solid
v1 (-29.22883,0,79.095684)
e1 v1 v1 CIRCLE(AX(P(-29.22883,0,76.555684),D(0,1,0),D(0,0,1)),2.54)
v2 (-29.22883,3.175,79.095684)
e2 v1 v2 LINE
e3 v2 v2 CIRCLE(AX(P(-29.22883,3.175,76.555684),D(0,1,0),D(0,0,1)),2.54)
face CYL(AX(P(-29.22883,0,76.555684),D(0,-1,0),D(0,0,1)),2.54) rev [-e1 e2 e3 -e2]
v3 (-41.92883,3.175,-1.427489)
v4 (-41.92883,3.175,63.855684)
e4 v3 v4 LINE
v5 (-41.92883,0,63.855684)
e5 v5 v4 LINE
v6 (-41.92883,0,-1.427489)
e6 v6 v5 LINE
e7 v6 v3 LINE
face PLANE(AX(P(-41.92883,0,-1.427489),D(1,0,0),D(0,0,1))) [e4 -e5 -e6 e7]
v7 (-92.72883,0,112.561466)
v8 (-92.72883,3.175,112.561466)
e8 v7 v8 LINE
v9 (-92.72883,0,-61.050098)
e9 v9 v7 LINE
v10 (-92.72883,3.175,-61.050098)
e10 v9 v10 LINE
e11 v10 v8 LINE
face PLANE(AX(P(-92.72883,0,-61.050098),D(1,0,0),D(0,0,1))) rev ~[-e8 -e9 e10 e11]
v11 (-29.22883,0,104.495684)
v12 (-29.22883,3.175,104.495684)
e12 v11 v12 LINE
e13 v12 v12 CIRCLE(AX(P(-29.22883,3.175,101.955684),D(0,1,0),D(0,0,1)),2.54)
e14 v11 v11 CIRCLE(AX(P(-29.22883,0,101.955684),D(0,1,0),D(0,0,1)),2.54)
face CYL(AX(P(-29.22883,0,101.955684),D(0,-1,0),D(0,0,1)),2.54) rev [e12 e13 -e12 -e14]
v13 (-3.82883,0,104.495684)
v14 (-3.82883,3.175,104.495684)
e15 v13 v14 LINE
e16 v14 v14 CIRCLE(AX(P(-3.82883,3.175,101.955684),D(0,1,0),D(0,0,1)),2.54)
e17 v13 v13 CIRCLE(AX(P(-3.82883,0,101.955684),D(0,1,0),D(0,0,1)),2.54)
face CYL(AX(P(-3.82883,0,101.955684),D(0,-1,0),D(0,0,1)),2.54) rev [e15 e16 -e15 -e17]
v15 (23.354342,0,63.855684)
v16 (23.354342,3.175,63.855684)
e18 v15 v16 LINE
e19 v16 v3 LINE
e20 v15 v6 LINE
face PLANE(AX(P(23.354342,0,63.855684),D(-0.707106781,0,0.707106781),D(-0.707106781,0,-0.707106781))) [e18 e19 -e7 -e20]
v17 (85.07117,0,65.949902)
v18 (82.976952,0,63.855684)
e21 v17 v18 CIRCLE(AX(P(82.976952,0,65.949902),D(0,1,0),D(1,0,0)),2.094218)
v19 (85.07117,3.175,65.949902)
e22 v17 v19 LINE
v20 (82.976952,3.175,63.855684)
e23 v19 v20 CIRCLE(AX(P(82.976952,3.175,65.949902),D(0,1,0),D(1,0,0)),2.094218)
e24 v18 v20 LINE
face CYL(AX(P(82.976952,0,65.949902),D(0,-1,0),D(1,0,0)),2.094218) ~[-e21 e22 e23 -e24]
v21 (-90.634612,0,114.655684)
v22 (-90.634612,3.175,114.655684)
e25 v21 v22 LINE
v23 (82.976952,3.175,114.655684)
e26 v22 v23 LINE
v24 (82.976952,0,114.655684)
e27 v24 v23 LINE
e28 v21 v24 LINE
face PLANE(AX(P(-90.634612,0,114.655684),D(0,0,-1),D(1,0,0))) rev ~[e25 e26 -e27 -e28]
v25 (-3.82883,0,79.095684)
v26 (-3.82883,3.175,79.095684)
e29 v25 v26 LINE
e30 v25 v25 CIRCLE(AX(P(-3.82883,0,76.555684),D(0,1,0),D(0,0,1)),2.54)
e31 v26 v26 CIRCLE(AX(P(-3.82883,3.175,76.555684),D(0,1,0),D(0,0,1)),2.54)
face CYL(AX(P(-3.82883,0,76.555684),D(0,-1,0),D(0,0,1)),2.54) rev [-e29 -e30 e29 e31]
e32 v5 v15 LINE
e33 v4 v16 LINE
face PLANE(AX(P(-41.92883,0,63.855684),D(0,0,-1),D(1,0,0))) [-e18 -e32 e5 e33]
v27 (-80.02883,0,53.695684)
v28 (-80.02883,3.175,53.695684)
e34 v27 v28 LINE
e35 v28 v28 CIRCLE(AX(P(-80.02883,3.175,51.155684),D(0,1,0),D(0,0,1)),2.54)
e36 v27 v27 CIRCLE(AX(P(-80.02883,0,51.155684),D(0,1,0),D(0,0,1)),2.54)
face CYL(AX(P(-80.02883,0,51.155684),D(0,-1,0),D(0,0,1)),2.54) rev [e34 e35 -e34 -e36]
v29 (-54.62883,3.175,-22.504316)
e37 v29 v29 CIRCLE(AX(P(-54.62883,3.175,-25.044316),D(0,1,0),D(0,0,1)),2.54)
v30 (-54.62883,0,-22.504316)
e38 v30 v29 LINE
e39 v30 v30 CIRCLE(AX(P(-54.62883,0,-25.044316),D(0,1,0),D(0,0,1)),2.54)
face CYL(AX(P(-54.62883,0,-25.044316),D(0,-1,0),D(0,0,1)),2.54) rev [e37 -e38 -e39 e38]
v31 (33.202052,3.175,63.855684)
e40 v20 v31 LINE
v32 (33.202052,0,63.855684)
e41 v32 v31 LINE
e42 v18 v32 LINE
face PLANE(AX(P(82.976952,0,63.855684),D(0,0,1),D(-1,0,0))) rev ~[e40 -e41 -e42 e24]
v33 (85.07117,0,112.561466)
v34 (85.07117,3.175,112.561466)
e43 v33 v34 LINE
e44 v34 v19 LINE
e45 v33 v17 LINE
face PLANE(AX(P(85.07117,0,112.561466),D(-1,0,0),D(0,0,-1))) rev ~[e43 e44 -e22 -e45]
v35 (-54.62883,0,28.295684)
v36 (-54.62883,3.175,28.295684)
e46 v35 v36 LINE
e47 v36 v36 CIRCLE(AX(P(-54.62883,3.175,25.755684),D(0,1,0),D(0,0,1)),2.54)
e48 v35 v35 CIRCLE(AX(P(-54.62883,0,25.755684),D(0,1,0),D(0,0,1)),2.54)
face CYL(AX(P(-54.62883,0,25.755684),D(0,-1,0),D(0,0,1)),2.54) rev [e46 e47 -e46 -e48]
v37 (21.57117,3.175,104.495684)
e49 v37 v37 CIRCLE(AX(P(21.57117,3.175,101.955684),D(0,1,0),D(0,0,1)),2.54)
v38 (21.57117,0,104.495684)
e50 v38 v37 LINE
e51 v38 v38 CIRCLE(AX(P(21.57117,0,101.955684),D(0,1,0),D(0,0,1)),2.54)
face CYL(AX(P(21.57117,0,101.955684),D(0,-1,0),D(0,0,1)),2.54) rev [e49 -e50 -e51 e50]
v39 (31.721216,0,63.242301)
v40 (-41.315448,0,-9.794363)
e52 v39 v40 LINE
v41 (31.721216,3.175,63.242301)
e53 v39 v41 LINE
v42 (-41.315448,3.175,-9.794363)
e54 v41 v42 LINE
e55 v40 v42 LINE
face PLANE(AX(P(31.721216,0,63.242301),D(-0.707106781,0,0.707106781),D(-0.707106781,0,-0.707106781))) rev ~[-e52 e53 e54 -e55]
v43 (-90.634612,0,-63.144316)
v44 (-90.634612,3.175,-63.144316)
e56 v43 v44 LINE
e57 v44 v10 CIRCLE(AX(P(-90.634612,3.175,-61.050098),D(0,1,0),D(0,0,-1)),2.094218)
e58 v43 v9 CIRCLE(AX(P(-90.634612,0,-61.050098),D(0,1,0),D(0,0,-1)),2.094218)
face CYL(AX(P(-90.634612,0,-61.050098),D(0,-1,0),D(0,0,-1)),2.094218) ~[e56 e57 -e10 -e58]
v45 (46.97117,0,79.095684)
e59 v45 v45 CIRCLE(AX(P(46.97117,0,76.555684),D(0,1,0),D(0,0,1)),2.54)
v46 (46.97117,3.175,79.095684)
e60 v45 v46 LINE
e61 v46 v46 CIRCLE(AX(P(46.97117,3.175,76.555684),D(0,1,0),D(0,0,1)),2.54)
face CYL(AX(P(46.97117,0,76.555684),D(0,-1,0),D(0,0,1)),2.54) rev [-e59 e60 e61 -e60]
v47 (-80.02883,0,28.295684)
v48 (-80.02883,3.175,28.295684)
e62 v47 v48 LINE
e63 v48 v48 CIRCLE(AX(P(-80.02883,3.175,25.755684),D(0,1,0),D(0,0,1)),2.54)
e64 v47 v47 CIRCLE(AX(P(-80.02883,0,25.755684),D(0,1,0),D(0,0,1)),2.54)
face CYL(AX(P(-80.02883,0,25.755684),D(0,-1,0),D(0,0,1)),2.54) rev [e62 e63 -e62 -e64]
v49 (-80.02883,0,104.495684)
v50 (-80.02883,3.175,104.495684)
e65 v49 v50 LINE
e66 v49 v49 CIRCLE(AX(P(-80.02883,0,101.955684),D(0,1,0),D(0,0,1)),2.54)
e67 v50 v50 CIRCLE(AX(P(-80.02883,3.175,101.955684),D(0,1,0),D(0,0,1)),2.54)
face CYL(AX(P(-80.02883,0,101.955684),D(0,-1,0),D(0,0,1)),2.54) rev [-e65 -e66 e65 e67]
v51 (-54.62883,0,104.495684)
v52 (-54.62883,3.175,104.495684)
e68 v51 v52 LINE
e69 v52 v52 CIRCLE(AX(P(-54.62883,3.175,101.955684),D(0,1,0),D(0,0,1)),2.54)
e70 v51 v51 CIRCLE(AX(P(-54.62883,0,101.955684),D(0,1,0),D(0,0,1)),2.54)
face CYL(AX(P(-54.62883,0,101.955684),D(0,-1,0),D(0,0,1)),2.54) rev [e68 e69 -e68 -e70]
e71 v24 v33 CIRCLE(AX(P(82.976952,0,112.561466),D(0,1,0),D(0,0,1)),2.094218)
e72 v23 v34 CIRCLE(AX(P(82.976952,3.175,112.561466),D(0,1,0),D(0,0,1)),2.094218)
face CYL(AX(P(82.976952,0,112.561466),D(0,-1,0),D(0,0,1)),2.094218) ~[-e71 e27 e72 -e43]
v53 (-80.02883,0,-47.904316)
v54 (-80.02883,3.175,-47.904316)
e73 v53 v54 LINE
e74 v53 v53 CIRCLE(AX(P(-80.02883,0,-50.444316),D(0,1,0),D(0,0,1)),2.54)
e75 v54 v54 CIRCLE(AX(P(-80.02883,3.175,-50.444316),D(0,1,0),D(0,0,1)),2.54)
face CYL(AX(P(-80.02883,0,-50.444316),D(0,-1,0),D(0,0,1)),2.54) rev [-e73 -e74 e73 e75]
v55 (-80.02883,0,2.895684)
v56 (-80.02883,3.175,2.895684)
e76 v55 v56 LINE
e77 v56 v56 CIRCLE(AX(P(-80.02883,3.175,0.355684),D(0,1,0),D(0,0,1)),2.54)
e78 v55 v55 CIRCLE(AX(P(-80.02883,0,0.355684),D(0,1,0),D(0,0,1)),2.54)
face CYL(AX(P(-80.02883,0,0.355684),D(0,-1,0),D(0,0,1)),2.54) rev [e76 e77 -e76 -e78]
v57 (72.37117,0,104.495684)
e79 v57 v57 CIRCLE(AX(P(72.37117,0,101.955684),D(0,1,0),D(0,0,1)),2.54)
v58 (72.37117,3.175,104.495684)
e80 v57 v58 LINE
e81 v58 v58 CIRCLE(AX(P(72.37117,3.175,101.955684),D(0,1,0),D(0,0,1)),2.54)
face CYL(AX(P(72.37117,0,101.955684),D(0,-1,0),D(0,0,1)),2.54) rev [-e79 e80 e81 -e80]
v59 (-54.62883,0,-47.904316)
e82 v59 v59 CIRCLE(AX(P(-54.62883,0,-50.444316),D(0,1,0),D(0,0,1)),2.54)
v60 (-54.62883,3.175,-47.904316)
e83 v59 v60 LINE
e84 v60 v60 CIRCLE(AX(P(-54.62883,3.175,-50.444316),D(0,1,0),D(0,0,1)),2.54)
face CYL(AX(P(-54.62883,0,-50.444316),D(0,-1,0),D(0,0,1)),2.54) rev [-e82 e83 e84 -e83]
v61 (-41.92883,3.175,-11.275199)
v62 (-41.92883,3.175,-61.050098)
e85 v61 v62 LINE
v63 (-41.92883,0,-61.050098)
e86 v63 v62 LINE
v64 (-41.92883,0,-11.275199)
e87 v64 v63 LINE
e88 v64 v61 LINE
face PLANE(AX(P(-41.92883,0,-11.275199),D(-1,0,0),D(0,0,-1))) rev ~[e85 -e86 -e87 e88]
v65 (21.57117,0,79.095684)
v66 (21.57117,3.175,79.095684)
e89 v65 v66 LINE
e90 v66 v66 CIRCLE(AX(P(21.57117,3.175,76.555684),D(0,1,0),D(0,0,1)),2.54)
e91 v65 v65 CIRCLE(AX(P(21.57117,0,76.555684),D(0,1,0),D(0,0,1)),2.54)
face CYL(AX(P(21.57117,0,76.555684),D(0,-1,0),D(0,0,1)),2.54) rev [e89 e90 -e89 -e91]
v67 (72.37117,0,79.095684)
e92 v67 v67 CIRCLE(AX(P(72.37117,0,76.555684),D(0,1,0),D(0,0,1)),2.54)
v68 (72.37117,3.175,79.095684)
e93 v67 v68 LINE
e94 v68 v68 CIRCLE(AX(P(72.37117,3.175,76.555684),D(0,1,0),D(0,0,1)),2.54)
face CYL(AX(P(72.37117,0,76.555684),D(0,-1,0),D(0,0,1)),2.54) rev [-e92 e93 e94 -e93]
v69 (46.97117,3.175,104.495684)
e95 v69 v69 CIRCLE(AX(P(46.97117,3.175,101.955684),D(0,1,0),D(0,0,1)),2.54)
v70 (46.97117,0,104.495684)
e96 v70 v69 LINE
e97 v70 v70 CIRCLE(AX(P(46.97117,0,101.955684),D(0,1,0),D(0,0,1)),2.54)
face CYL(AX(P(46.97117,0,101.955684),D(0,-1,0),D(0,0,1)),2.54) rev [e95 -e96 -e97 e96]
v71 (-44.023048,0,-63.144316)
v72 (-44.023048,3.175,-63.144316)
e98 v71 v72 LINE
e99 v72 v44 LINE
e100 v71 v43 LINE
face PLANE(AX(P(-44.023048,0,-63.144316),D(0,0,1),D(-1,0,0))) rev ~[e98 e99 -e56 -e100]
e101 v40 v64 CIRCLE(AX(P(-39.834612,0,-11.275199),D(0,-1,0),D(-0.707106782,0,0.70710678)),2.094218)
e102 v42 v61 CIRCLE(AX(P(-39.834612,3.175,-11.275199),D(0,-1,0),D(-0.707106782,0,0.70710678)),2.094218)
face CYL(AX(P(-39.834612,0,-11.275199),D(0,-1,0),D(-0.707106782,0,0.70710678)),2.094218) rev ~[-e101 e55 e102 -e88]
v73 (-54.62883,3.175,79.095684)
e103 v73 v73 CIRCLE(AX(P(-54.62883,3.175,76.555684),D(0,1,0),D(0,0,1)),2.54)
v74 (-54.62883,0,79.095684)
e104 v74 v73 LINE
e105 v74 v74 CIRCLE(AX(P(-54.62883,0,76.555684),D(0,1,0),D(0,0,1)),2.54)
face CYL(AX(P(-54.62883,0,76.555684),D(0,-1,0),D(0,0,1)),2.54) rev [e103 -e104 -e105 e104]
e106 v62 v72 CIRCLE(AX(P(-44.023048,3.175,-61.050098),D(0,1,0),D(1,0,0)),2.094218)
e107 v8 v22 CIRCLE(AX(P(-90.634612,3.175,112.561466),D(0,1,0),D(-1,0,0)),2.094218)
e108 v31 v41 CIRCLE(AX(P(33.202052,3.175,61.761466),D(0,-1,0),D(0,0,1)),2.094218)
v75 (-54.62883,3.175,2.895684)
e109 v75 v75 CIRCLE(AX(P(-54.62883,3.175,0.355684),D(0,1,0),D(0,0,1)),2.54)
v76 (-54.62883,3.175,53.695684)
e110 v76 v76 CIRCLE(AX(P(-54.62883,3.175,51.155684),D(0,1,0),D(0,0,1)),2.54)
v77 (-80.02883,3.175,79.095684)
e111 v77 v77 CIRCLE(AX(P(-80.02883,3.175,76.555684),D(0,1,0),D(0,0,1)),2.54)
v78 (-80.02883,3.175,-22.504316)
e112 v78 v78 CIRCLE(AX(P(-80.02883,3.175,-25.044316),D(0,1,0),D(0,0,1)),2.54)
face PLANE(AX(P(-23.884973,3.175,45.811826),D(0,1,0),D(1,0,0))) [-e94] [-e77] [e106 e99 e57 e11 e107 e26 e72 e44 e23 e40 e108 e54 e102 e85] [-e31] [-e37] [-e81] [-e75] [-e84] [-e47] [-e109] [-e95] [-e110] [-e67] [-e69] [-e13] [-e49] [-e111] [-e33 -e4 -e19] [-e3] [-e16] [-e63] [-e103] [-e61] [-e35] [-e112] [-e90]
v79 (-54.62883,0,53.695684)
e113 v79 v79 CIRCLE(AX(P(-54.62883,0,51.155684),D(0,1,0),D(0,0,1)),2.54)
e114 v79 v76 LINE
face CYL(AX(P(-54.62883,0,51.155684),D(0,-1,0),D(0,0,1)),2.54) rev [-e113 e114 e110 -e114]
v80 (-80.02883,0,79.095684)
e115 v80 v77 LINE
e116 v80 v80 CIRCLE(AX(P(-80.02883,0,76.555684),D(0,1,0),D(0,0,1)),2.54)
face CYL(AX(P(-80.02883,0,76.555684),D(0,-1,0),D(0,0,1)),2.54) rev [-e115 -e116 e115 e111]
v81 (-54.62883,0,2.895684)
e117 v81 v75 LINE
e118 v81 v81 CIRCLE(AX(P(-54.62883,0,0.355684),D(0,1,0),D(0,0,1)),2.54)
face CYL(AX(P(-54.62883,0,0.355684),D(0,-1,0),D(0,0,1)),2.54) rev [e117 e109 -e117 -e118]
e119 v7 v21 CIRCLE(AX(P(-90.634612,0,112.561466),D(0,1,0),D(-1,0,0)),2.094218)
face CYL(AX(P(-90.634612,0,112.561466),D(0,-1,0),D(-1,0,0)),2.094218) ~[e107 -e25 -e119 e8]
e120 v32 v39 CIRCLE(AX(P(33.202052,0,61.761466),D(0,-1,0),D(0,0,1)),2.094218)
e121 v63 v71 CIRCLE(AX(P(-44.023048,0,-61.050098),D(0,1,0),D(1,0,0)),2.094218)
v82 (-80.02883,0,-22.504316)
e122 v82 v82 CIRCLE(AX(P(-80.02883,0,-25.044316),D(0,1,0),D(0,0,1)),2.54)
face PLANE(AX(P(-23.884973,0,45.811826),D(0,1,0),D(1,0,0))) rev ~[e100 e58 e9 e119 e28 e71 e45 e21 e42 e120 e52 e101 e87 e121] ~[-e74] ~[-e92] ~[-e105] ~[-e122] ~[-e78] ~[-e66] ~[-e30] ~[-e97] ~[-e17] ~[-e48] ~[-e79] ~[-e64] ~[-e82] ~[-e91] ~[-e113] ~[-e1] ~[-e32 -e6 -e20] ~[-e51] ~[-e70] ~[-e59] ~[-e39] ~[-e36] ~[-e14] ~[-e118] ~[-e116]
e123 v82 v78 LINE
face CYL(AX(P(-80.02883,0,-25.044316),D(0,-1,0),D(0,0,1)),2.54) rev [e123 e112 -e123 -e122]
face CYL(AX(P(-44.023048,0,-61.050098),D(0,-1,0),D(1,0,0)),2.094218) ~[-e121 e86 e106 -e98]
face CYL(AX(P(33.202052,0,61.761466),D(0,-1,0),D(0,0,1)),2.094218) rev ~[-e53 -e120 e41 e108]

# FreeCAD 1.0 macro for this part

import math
import FreeCAD as App
import Part
import Sketcher

V = App.Vector
Q = App.Units.Quantity

doc = App.newDocument("Part")
body = doc.addObject("PartDesign::Body", "Body")

# Sketch on XZ plane
sketch1 = body.newObject("Sketcher::SketchObject", "Sketch")
sketch1.AttachmentSupport = (doc.getObject("XZ_Plane"), [""])
sketch1.MapMode = "FlatFace"
sketch1.addGeometry([
    Part.LineSegment(V(-92.72883, -61.050098, 0), V(-92.72883, 112.561466, 0)),  # 0
    Part.ArcOfCircle(Part.Circle(V(-90.634612, 112.561466, 0), V(0, 0, 1), 2.094218), math.radians(90), math.radians(180)),  # 1
    Part.LineSegment(V(-90.634612, 114.655684, 0), V(82.976952, 114.655684, 0)),  # 2
    Part.ArcOfCircle(Part.Circle(V(82.976952, 112.561466, 0), V(0, 0, 1), 2.094218), math.radians(0), math.radians(90)),  # 3
    Part.LineSegment(V(85.07117, 112.561466, 0), V(85.07117, 65.949902, 0)),  # 4
    Part.ArcOfCircle(Part.Circle(V(82.976952, 65.949902, 0), V(0, 0, 1), 2.094218), math.radians(-90), math.radians(0)),  # 5
    Part.LineSegment(V(82.976952, 63.855684, 0), V(33.202052, 63.855684, 0)),  # 6
    Part.ArcOfCircle(Part.Circle(V(33.202052, 61.761466, 0), V(0, 0, 1), 2.094218), math.radians(90), math.radians(135)),  # 7
    Part.LineSegment(V(31.721216, 63.242301, 0), V(-41.315448, -9.794363, 0)),  # 8
    Part.ArcOfCircle(Part.Circle(V(-39.834612, -11.275199, 0), V(0, 0, 1), 2.094218), math.radians(135), math.radians(180)),  # 9
    Part.LineSegment(V(-41.92883, -11.275199, 0), V(-41.92883, -61.050098, 0)),  # 10
    Part.ArcOfCircle(Part.Circle(V(-44.023048, -61.050098, 0), V(0, 0, 1), 2.094218), math.radians(-90), math.radians(0)),  # 11
    Part.LineSegment(V(-44.023048, -63.144316, 0), V(-90.634612, -63.144316, 0)),  # 12
    Part.ArcOfCircle(Part.Circle(V(-90.634612, -61.050098, 0), V(0, 0, 1), 2.094218), math.radians(180), math.radians(270)),  # 13
    Part.Circle(V(-80.02883, 101.955684, 0), V(0, 0, 1), 2.54),  # 14
    Part.Circle(V(-54.62883, 101.955684, 0), V(0, 0, 1), 2.54),  # 15
    Part.Circle(V(-80.02883, 76.555684, 0), V(0, 0, 1), 2.54),  # 16
    Part.Circle(V(-54.62883, 76.555684, 0), V(0, 0, 1), 2.54),  # 17
    Part.Circle(V(-29.22883, 101.955684, 0), V(0, 0, 1), 2.54),  # 18
    Part.Circle(V(-29.22883, 76.555684, 0), V(0, 0, 1), 2.54),  # 19
    Part.Circle(V(-80.02883, 51.155684, 0), V(0, 0, 1), 2.54),  # 20
    Part.Circle(V(-54.62883, 51.155684, 0), V(0, 0, 1), 2.54),  # 21
    Part.LineSegment(V(-41.92883, 63.855684, 0), V(-41.92883, -1.427489, 0)),  # 22
    Part.LineSegment(V(-41.92883, -1.427489, 0), V(23.354342, 63.855684, 0)),  # 23
    Part.LineSegment(V(23.354342, 63.855684, 0), V(-41.92883, 63.855684, 0)),  # 24
    Part.Circle(V(-3.82883, 101.955684, 0), V(0, 0, 1), 2.54),  # 25
    Part.Circle(V(21.57117, 101.955684, 0), V(0, 0, 1), 2.54),  # 26
    Part.Circle(V(-3.82883, 76.555684, 0), V(0, 0, 1), 2.54),  # 27
    Part.Circle(V(21.57117, 76.555684, 0), V(0, 0, 1), 2.54),  # 28
    Part.Circle(V(46.97117, 101.955684, 0), V(0, 0, 1), 2.54),  # 29
    Part.Circle(V(72.37117, 101.955684, 0), V(0, 0, 1), 2.54),  # 30
    Part.Circle(V(46.97117, 76.555684, 0), V(0, 0, 1), 2.54),  # 31
    Part.Circle(V(72.37117, 76.555684, 0), V(0, 0, 1), 2.54),  # 32
    Part.Circle(V(-80.02883, 25.755684, 0), V(0, 0, 1), 2.54),  # 33
    Part.Circle(V(-54.62883, 25.755684, 0), V(0, 0, 1), 2.54),  # 34
    Part.Circle(V(-80.02883, 0.355684, 0), V(0, 0, 1), 2.54),  # 35
    Part.Circle(V(-54.62883, 0.355684, 0), V(0, 0, 1), 2.54),  # 36
    Part.Circle(V(-80.02883, -25.044316, 0), V(0, 0, 1), 2.54),  # 37
    Part.Circle(V(-54.62883, -25.044316, 0), V(0, 0, 1), 2.54),  # 38
    Part.Circle(V(-80.02883, -50.444316, 0), V(0, 0, 1), 2.54),  # 39
    Part.Circle(V(-54.62883, -50.444316, 0), V(0, 0, 1), 2.54),  # 40
], False)
sketch1.addConstraint([
    Sketcher.Constraint("Tangent", 0, 2, 1, 2),
    Sketcher.Constraint("Tangent", 1, 1, 2, 1),
    Sketcher.Constraint("Tangent", 2, 2, 3, 2),
    Sketcher.Constraint("Tangent", 3, 1, 4, 1),
    Sketcher.Constraint("Tangent", 4, 2, 5, 2),
    Sketcher.Constraint("Tangent", 5, 1, 6, 1),
    Sketcher.Constraint("Tangent", 6, 2, 7, 1),
    Sketcher.Constraint("Tangent", 7, 2, 8, 1),
    Sketcher.Constraint("Tangent", 8, 2, 9, 1),
    Sketcher.Constraint("Tangent", 9, 2, 10, 1),
    Sketcher.Constraint("Tangent", 10, 2, 11, 2),
    Sketcher.Constraint("Tangent", 11, 1, 12, 1),
    Sketcher.Constraint("Tangent", 12, 2, 13, 2),
    Sketcher.Constraint("Tangent", 13, 1, 0, 1),
    Sketcher.Constraint("Coincident", 22, 2, 23, 1),
    Sketcher.Constraint("Coincident", 23, 2, 24, 1),
    Sketcher.Constraint("Coincident", 24, 2, 22, 1),
    Sketcher.Constraint("Vertical", 0),
    Sketcher.Constraint("Horizontal", 2),
    Sketcher.Constraint("Vertical", 4),
    Sketcher.Constraint("Horizontal", 6),
    Sketcher.Constraint("Vertical", 10),
    Sketcher.Constraint("Horizontal", 12),
    Sketcher.Constraint("Vertical", 22),
    Sketcher.Constraint("Horizontal", 24),
    Sketcher.Constraint("Equal", 1, 3),
    Sketcher.Constraint("Equal", 3, 5),
    Sketcher.Constraint("Equal", 5, 7),
    Sketcher.Constraint("Equal", 7, 9),
    Sketcher.Constraint("Equal", 9, 11),
    Sketcher.Constraint("Equal", 11, 13),
    Sketcher.Constraint("Equal", 14, 15),
    Sketcher.Constraint("Equal", 15, 16),
    Sketcher.Constraint("Equal", 16, 17),
    Sketcher.Constraint("Equal", 17, 18),
    Sketcher.Constraint("Equal", 18, 19),
    Sketcher.Constraint("Equal", 19, 20),
    Sketcher.Constraint("Equal", 20, 21),
    Sketcher.Constraint("Equal", 21, 25),
    Sketcher.Constraint("Equal", 25, 26),
    Sketcher.Constraint("Equal", 26, 27),
    Sketcher.Constraint("Equal", 27, 28),
    Sketcher.Constraint("Equal", 28, 29),
    Sketcher.Constraint("Equal", 29, 30),
    Sketcher.Constraint("Equal", 30, 31),
    Sketcher.Constraint("Equal", 31, 32),
    Sketcher.Constraint("Equal", 32, 33),
    Sketcher.Constraint("Equal", 33, 34),
    Sketcher.Constraint("Equal", 34, 35),
    Sketcher.Constraint("Equal", 35, 36),
    Sketcher.Constraint("Equal", 36, 37),
    Sketcher.Constraint("Equal", 37, 38),
    Sketcher.Constraint("Equal", 38, 39),
    Sketcher.Constraint("Equal", 39, 40),
    Sketcher.Constraint("Parallel", 8, 23),
    Sketcher.Constraint("Horizontal", 14, 3, 15, 3),
    Sketcher.Constraint("Horizontal", 16, 3, 17, 3),
    Sketcher.Constraint("Horizontal", 15, 3, 18, 3),
    Sketcher.Constraint("Horizontal", 17, 3, 19, 3),
    Sketcher.Constraint("Horizontal", 20, 3, 21, 3),
    Sketcher.Constraint("Horizontal", 18, 3, 25, 3),
    Sketcher.Constraint("Horizontal", 25, 3, 26, 3),
    Sketcher.Constraint("Horizontal", 19, 3, 27, 3),
    Sketcher.Constraint("Horizontal", 27, 3, 28, 3),
    Sketcher.Constraint("Horizontal", 26, 3, 29, 3),
    Sketcher.Constraint("Horizontal", 29, 3, 30, 3),
    Sketcher.Constraint("Horizontal", 28, 3, 31, 3),
    Sketcher.Constraint("Horizontal", 31, 3, 32, 3),
    Sketcher.Constraint("Horizontal", 33, 3, 34, 3),
    Sketcher.Constraint("Horizontal", 35, 3, 36, 3),
    Sketcher.Constraint("Horizontal", 37, 3, 38, 3),
    Sketcher.Constraint("Horizontal", 39, 3, 40, 3),
    Sketcher.Constraint("Horizontal", 6, 2, 23, 2),
    Sketcher.Constraint("Vertical", 14, 3, 16, 3),
    Sketcher.Constraint("Vertical", 15, 3, 17, 3),
    Sketcher.Constraint("Vertical", 18, 3, 19, 3),
    Sketcher.Constraint("Vertical", 16, 3, 20, 3),
    Sketcher.Constraint("Vertical", 17, 3, 21, 3),
    Sketcher.Constraint("Vertical", 25, 3, 27, 3),
    Sketcher.Constraint("Vertical", 26, 3, 28, 3),
    Sketcher.Constraint("Vertical", 29, 3, 31, 3),
    Sketcher.Constraint("Vertical", 30, 3, 32, 3),
    Sketcher.Constraint("Vertical", 20, 3, 33, 3),
    Sketcher.Constraint("Vertical", 21, 3, 34, 3),
    Sketcher.Constraint("Vertical", 33, 3, 35, 3),
    Sketcher.Constraint("Vertical", 34, 3, 36, 3),
    Sketcher.Constraint("Vertical", 35, 3, 37, 3),
    Sketcher.Constraint("Vertical", 36, 3, 38, 3),
    Sketcher.Constraint("Vertical", 37, 3, 39, 3),
    Sketcher.Constraint("Vertical", 38, 3, 40, 3),
    Sketcher.Constraint("Vertical", 10, 2, 22, 2),
    Sketcher.Constraint("Equal", 2, 0),
    Sketcher.Constraint("Equal", 12, 4),
    Sketcher.Constraint("Equal", 6, 10),
    Sketcher.Constraint("Diameter", 14, Q("0.2 in")),
    Sketcher.Constraint("DistanceY", 7, 3, 3, 3, Q("2 in")),
    Sketcher.Constraint("DistanceX", 11, 3, 5, 3, Q("5 in")),
    Sketcher.Constraint("DistanceX", 14, 3, 15, 3, Q("1 in")),
    Sketcher.Constraint("DistanceY", 16, 3, 14, 3, Q("1 in")),
    Sketcher.Constraint("DistanceX", 15, 3, 18, 3, Q("1 in")),
    Sketcher.Constraint("DistanceY", 20, 3, 16, 3, Q("1 in")),
    Sketcher.Constraint("DistanceX", 18, 3, 25, 3, Q("1 in")),
    Sketcher.Constraint("DistanceX", 25, 3, 26, 3, Q("1 in")),
    Sketcher.Constraint("DistanceX", 26, 3, 29, 3, Q("1 in")),
    Sketcher.Constraint("DistanceX", 29, 3, 30, 3, Q("1 in")),
    Sketcher.Constraint("DistanceY", 33, 3, 20, 3, Q("1 in")),
    Sketcher.Constraint("DistanceY", 35, 3, 33, 3, Q("1 in")),
    Sketcher.Constraint("DistanceY", 37, 3, 35, 3, Q("1 in")),
    Sketcher.Constraint("DistanceY", 39, 3, 37, 3, Q("1 in")),
    Sketcher.Constraint("DistanceX", 0, 2, 14, 3, Q("0.5 in")),
    Sketcher.Constraint("DistanceY", 14, 3, 1, 1, Q("0.5 in")),
    Sketcher.Constraint("DistanceX", 6, 2, 6, 1, Q("49.7749 mm")),
    Sketcher.Constraint("Radius", 1, Q("2.094218 mm")),
    Sketcher.Constraint("DistanceY", -1, 1, 5, 3, Q("65.949902 mm")),
    Sketcher.Constraint("Distance", 23, Q("92.324348 mm")),
    Sketcher.Constraint("DistanceX", -1, 1, 3, 3, Q("82.976952 mm")),
])
pad1 = body.newObject("PartDesign::Pad", "Pad")
pad1.Profile = sketch1
pad1.Length = Q("0.125 in")
pad1.Reversed = True

doc.recompute()
